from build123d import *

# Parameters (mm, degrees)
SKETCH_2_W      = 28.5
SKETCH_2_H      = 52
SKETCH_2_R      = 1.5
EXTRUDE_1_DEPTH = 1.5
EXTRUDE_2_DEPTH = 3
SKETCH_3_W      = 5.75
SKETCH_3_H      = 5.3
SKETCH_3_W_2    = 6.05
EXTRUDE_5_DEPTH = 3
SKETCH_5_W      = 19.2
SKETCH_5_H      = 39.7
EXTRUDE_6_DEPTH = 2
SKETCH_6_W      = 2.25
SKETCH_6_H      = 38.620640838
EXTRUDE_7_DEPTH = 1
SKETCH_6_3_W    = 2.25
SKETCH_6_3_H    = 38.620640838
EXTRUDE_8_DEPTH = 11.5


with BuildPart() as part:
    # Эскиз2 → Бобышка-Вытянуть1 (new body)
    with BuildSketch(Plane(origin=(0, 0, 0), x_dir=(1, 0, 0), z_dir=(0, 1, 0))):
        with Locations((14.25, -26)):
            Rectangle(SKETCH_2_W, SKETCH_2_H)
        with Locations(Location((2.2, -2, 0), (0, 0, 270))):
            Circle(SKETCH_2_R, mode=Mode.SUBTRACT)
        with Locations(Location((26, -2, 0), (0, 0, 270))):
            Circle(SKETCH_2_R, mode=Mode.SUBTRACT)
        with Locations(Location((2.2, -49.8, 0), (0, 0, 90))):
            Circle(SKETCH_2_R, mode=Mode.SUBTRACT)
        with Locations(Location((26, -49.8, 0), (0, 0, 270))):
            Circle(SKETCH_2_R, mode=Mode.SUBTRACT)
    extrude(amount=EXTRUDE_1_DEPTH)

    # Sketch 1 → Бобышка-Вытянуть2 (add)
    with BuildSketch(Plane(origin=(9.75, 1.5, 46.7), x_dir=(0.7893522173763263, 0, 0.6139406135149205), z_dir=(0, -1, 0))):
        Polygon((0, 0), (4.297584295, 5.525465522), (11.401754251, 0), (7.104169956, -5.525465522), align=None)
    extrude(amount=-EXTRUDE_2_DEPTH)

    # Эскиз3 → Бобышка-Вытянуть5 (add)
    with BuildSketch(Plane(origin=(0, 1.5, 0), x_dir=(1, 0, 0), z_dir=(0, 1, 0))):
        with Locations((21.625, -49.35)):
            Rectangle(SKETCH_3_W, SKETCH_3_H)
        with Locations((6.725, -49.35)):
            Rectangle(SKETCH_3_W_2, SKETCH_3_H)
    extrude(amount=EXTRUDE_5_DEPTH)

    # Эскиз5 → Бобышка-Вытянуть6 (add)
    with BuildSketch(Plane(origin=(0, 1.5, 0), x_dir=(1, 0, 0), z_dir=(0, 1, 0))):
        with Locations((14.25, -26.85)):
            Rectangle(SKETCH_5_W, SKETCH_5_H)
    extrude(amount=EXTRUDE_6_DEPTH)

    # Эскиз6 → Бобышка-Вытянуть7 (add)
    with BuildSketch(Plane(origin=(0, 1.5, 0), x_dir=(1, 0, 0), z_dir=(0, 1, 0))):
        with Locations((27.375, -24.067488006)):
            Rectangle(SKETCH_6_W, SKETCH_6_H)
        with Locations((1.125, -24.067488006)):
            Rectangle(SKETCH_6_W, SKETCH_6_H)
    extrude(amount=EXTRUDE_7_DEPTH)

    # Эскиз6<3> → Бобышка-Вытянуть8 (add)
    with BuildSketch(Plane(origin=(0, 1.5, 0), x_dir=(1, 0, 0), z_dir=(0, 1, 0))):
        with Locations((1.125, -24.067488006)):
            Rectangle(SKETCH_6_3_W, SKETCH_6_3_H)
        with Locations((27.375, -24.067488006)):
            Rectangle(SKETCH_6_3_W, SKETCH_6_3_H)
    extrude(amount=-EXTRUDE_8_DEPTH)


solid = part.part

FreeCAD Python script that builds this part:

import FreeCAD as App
import Part
import Sketcher

V = App.Vector


def add_polygon(sketch, points):
    """Adds a closed chain of lines whose ends are joined by coincident constraints."""
    first, n = sketch.GeometryCount, len(points)
    for a, b in zip(points, points[1:] + points[:1]):
        sketch.addGeometry(Part.LineSegment(App.Vector(*a, 0), App.Vector(*b, 0)), False)
    for i in range(n):
        sketch.addConstraint(Sketcher.Constraint("Coincident", first + i, 2, first + (i + 1) % n, 1))

doc = App.newDocument("Part")
body = doc.addObject("PartDesign::Body", "Body")

# Sketch on XZ plane
sketch1 = body.newObject("Sketcher::SketchObject", "Sketch")
sketch1.AttachmentSupport = (doc.getObject("XZ_Plane"), [""])
sketch1.MapMode = "FlatFace"
add_polygon(sketch1, [(0, 0), (0, 52), (28.5, 52), (28.5, 0)])  # lines 0-3
sketch1.addGeometry(Part.Circle(V(2.2, 49.8, 0), V(0, 0, 1), 1.5), False)  # 4
sketch1.addGeometry(Part.Circle(V(26, 49.8, 0), V(0, 0, 1), 1.5), False)  # 5
sketch1.addGeometry(Part.Circle(V(2.2, 2, 0), V(0, 0, 1), 1.5), False)  # 6
sketch1.addGeometry(Part.Circle(V(26, 2, 0), V(0, 0, 1), 1.5), False)  # 7
sketch1.addConstraint([
    Sketcher.Constraint("Vertical", 0),
    Sketcher.Constraint("Horizontal", 1),
    Sketcher.Constraint("Vertical", 2),
    Sketcher.Constraint("Horizontal", 3),
    Sketcher.Constraint("Coincident", 3, 2, -1, 1),
    Sketcher.Constraint("Equal", 4, 5),
    Sketcher.Constraint("Equal", 5, 6),
    Sketcher.Constraint("Equal", 6, 7),
    Sketcher.Constraint("Horizontal", 4, 3, 5, 3),
    Sketcher.Constraint("Horizontal", 6, 3, 7, 3),
    Sketcher.Constraint("Vertical", 4, 3, 6, 3),
    Sketcher.Constraint("Vertical", 5, 3, 7, 3),
    Sketcher.Constraint("Diameter", 4, 3.0),
    Sketcher.Constraint("DistanceY", 0, 1, 0, 2, 52.0),
    Sketcher.Constraint("DistanceX", 1, 1, 1, 2, 28.5),
    Sketcher.Constraint("DistanceX", -1, 1, 5, 3, 26.0),
    Sketcher.Constraint("DistanceY", -1, 1, 6, 3, 2.0),
    Sketcher.Constraint("DistanceX", -1, 1, 4, 3, 2.2),
    Sketcher.Constraint("DistanceY", -1, 1, 4, 3, 49.8),
])
pad1 = body.newObject("PartDesign::Pad", "Pad")
pad1.Profile = sketch1
pad1.Length = 1.5
pad1.Reversed = True

# Sketch on XZ plane
sketch2 = body.newObject("Sketcher::SketchObject", "Sketch001")
sketch2.AttachmentSupport = (doc.getObject("XZ_Plane"), [""])
sketch2.MapMode = "FlatFace"
sketch2.AttachmentOffset = App.Placement(V(0, 0, -1.5), App.Rotation())
add_polygon(sketch2, [(10, 54), (10, 47), (19, 47), (19, 54)])  # lines 0-3
sketch2.addConstraint([
    Sketcher.Constraint("Vertical", 0),
    Sketcher.Constraint("Horizontal", 1),
    Sketcher.Constraint("Vertical", 2),
    Sketcher.Constraint("Horizontal", 3),
    Sketcher.Constraint("DistanceX", 1, 1, 1, 2, 9.0),
    Sketcher.Constraint("DistanceY", 0, 2, 0, 1, 7.0),
    Sketcher.Constraint("DistanceY", -1, 1, 0, 2, 46.7),
    Sketcher.Constraint("DistanceX", -1, 1, 0, 2, 9.75),
])
pad2 = body.newObject("PartDesign::Pad", "Pad001")
pad2.Profile = sketch2
pad2.Length = 3
pad2.Reversed = True

# Sketch on XZ plane
sketch3 = body.newObject("Sketcher::SketchObject", "Sketch002")
sketch3.AttachmentSupport = (doc.getObject("XZ_Plane"), [""])
sketch3.MapMode = "FlatFace"
sketch3.AttachmentOffset = App.Placement(V(0, 0, -1.5), App.Rotation())
add_polygon(sketch3, [(19, 47), (19, 52), (24, 52), (24, 47)])  # lines 0-3
add_polygon(sketch3, [(4, 47), (4, 52), (10, 52), (10, 47)])  # lines 4-7
sketch3.addConstraint([
    Sketcher.Constraint("Vertical", 0),
    Sketcher.Constraint("Horizontal", 1),
    Sketcher.Constraint("Vertical", 2),
    Sketcher.Constraint("Horizontal", 3),
    Sketcher.Constraint("Vertical", 4),
    Sketcher.Constraint("Horizontal", 5),
    Sketcher.Constraint("Vertical", 6),
    Sketcher.Constraint("Horizontal", 7),
    Sketcher.Constraint("Horizontal", 1, 2, 4, 2),
    Sketcher.Constraint("Horizontal", 3, 2, 6, 2),
    Sketcher.Constraint("DistanceY", 0, 1, 0, 2, 5.3),
    Sketcher.Constraint("DistanceY", -1, 1, 0, 2, 52.0),
    Sketcher.Constraint("DistanceX", 5, 2, 0, 2, 9.0),
    Sketcher.Constraint("DistanceX", 1, 1, 1, 2, 5.75),
    Sketcher.Constraint("DistanceX", 5, 1, 5, 2, 6.05),
    Sketcher.Constraint("DistanceX", -1, 1, 1, 2, 24.5),
])
pad3 = body.newObject("PartDesign::Pad", "Pad002")
pad3.Profile = sketch3
pad3.Length = 3
pad3.Reversed = True

# Sketch on XZ plane
sketch4 = body.newObject("Sketcher::SketchObject", "Sketch003")
sketch4.AttachmentSupport = (doc.getObject("XZ_Plane"), [""])
sketch4.MapMode = "FlatFace"
sketch4.AttachmentOffset = App.Placement(V(0, 0, -1.5), App.Rotation())
add_polygon(sketch4, [(5, 7), (5, 47), (24, 47), (24, 7)])  # lines 0-3
sketch4.addConstraint([
    Sketcher.Constraint("Vertical", 0),
    Sketcher.Constraint("Horizontal", 1),
    Sketcher.Constraint("Vertical", 2),
    Sketcher.Constraint("Horizontal", 3),
    Sketcher.Constraint("DistanceX", 1, 1, 1, 2, 19.2),
    Sketcher.Constraint("DistanceY", 0, 1, 0, 2, 39.7),
    Sketcher.Constraint("DistanceY", -1, 1, 2, 2, 7.0),
    Sketcher.Constraint("DistanceX", -1, 1, 0, 2, 4.65),
])
pad4 = body.newObject("PartDesign::Pad", "Pad003")
pad4.Profile = sketch4
pad4.Length = 2
pad4.Reversed = True

# Sketch on XZ plane
sketch5 = body.newObject("Sketcher::SketchObject", "Sketch004")
sketch5.AttachmentSupport = (doc.getObject("XZ_Plane"), [""])
sketch5.MapMode = "FlatFace"
sketch5.AttachmentOffset = App.Placement(V(0, 0, -1.5), App.Rotation())
add_polygon(sketch5, [(26.2, 4.8), (26.2, 43.4), (28.5, 43.4), (28.5, 4.8)])  # lines 0-3
add_polygon(sketch5, [(0, 4.8), (0, 43.4), (2.2, 43.4), (2.2, 4.8)])  # lines 4-7
sketch5.addConstraint([
    Sketcher.Constraint("Vertical", 0),
    Sketcher.Constraint("Horizontal", 1),
    Sketcher.Constraint("Vertical", 2),
    Sketcher.Constraint("Horizontal", 3),
    Sketcher.Constraint("Vertical", 4),
    Sketcher.Constraint("Horizontal", 5),
    Sketcher.Constraint("Vertical", 6),
    Sketcher.Constraint("Horizontal", 7),
    Sketcher.Constraint("PointOnObject", 4, 2, -2),
    Sketcher.Constraint("Horizontal", 1, 2, 4, 2),
    Sketcher.Constraint("Horizontal", 3, 2, 6, 2),
    Sketcher.Constraint("Equal", 3, 5),
    Sketcher.Constraint("DistanceX", 5, 2, 0, 2, 24.0),
    Sketcher.Constraint("DistanceX", 1, 1, 1, 2, 2.25),
    Sketcher.Constraint("DistanceY", 0, 1, 0, 2, 38.620641),
    Sketcher.Constraint("DistanceY", -1, 1, 0, 2, 43.377808),
])
pad5 = body.newObject("PartDesign::Pad", "Pad004")
pad5.Profile = sketch5
pad5.Length = 1
pad5.Reversed = True

# Sketch on XZ plane
sketch6 = body.newObject("Sketcher::SketchObject", "Sketch005")
sketch6.AttachmentSupport = (doc.getObject("XZ_Plane"), [""])
sketch6.MapMode = "FlatFace"
sketch6.AttachmentOffset = App.Placement(V(0, 0, -1.5), App.Rotation())
add_polygon(sketch6, [(0, 4.8), (0, 43.4), (2.2, 43.4), (2.2, 4.8)])  # lines 0-3
add_polygon(sketch6, [(26.2, 4.8), (26.2, 43.4), (28.5, 43.4), (28.5, 4.8)])  # lines 4-7
sketch6.addConstraint([
    Sketcher.Constraint("Vertical", 0),
    Sketcher.Constraint("Horizontal", 1),
    Sketcher.Constraint("Vertical", 2),
    Sketcher.Constraint("Horizontal", 3),
    Sketcher.Constraint("Vertical", 4),
    Sketcher.Constraint("Horizontal", 5),
    Sketcher.Constraint("Vertical", 6),
    Sketcher.Constraint("Horizontal", 7),
    Sketcher.Constraint("PointOnObject", 0, 2, -2),
    Sketcher.Constraint("Horizontal", 1, 2, 4, 2),
    Sketcher.Constraint("Horizontal", 3, 2, 6, 2),
    Sketcher.Constraint("Equal", 3, 5),
    Sketcher.Constraint("DistanceX", 1, 2, 4, 2, 24.0),
    Sketcher.Constraint("DistanceX", 1, 1, 1, 2, 2.25),
    Sketcher.Constraint("DistanceY", 0, 1, 0, 2, 38.620641),
    Sketcher.Constraint("DistanceY", -1, 1, 0, 2, 43.377808),
])
pad6 = body.newObject("PartDesign::Pad", "Pad005")
pad6.Profile = sketch6
pad6.Length = 11.5

doc.recompute()
